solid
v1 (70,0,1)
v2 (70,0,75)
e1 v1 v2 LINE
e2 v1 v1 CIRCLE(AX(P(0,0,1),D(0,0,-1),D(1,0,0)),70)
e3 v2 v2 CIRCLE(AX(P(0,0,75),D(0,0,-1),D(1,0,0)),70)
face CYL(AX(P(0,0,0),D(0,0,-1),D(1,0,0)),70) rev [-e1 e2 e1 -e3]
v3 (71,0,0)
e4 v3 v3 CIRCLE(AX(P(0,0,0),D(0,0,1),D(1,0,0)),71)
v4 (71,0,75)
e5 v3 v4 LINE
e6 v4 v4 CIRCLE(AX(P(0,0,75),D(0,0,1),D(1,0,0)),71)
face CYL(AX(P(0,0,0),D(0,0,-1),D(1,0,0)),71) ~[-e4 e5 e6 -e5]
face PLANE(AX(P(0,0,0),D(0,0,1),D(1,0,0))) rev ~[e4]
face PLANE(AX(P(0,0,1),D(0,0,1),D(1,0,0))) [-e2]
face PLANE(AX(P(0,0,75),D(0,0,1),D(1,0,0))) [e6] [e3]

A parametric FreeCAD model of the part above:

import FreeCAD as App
import Part
import Sketcher
from FreeCAD import Vector


def faces_at(feature, points):
    """Names of the faces that lie closest to the given points."""
    faces = feature.Shape.Faces
    near = lambda p: min(range(len(faces)), key=lambda i: faces[i].distToShape(Part.Vertex(*p))[0])
    return sorted({f"Face{near(p) + 1}" for p in points})

doc = App.newDocument("Part")
body = doc.addObject("PartDesign::Body", "Body")

sketch1 = doc.addObject("Sketcher::SketchObject", "Sketch")
body.addObject(sketch1)
sketch1.AttachmentSupport = (doc.XY_Plane, [""])
sketch1.MapMode = "FlatFace"
sketch1.addGeometry(Part.Circle(Vector(0, 0, 0), Vector(0, 0, 1), 71), False)
sketch1.addConstraint([
    Sketcher.Constraint("Coincident", 0, 3, -1, 1),
    Sketcher.Constraint("Diameter", 0, 142.0),
])
pad1 = doc.addObject("PartDesign::Pad", "Pad")
body.addObject(pad1)
pad1.Profile = sketch1
pad1.Length = 75
doc.recompute()

thickness = doc.addObject("PartDesign::Thickness", "Thickness")
body.addObject(thickness)
thickness.Base = (pad1, faces_at(pad1, [(12.047, 0, 75)]))
thickness.Value = 1
thickness.Reversed = True
thickness.Join = "Intersection"

doc.recompute()
